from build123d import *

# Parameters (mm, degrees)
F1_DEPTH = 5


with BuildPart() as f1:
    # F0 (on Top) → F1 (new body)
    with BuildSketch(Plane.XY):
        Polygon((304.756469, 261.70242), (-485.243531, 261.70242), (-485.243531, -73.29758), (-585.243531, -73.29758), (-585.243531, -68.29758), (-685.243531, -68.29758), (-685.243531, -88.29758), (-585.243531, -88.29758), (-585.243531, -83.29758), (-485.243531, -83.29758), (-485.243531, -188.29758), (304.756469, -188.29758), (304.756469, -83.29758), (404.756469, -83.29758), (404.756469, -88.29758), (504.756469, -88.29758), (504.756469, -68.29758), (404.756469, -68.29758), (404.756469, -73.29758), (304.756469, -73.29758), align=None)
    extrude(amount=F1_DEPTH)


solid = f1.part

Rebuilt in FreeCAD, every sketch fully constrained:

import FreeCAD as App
import Part
import Sketcher
from FreeCAD import Vector

doc = App.newDocument("Part")
body = doc.addObject("PartDesign::Body", "Body")

# Sketch on XY plane
sketch1 = doc.addObject("Sketcher::SketchObject", "Sketch")
body.addObject(sketch1)
sketch1.AttachmentSupport = (doc.XY_Plane, [""])
sketch1.MapMode = "FlatFace"
sketch1.addGeometry([
    Part.LineSegment(Vector(304.756469, 261.70242, 0), Vector(-485.243531, 261.70242, 0)),  # 0
    Part.LineSegment(Vector(-485.243531, 261.70242, 0), Vector(-485.243531, -73.29758, 0)),  # 1
    Part.LineSegment(Vector(-485.243531, -73.29758, 0), Vector(-585.243531, -73.29758, 0)),  # 2
    Part.LineSegment(Vector(-585.243531, -73.29758, 0), Vector(-585.243531, -68.29758, 0)),  # 3
    Part.LineSegment(Vector(-585.243531, -68.29758, 0), Vector(-685.243531, -68.29758, 0)),  # 4
    Part.LineSegment(Vector(-685.243531, -68.29758, 0), Vector(-685.243531, -88.29758, 0)),  # 5
    Part.LineSegment(Vector(-685.243531, -88.29758, 0), Vector(-585.243531, -88.29758, 0)),  # 6
    Part.LineSegment(Vector(-585.243531, -88.29758, 0), Vector(-585.243531, -83.29758, 0)),  # 7
    Part.LineSegment(Vector(-585.243531, -83.29758, 0), Vector(-485.243531, -83.29758, 0)),  # 8
    Part.LineSegment(Vector(-485.243531, -83.29758, 0), Vector(-485.243531, -188.29758, 0)),  # 9
    Part.LineSegment(Vector(-485.243531, -188.29758, 0), Vector(304.756469, -188.29758, 0)),  # 10
    Part.LineSegment(Vector(304.756469, -188.29758, 0), Vector(304.756469, -83.29758, 0)),  # 11
    Part.LineSegment(Vector(304.756469, -83.29758, 0), Vector(404.756469, -83.29758, 0)),  # 12
    Part.LineSegment(Vector(404.756469, -83.29758, 0), Vector(404.756469, -88.29758, 0)),  # 13
    Part.LineSegment(Vector(404.756469, -88.29758, 0), Vector(504.756469, -88.29758, 0)),  # 14
    Part.LineSegment(Vector(504.756469, -88.29758, 0), Vector(504.756469, -68.29758, 0)),  # 15
    Part.LineSegment(Vector(504.756469, -68.29758, 0), Vector(404.756469, -68.29758, 0)),  # 16
    Part.LineSegment(Vector(404.756469, -68.29758, 0), Vector(404.756469, -73.29758, 0)),  # 17
    Part.LineSegment(Vector(404.756469, -73.29758, 0), Vector(304.756469, -73.29758, 0)),  # 18
    Part.LineSegment(Vector(304.756469, -73.29758, 0), Vector(304.756469, 261.70242, 0)),  # 19
], False)
sketch1.addConstraint([
    Sketcher.Constraint("Coincident", 0, 2, 1, 1),
    Sketcher.Constraint("Coincident", 1, 2, 2, 1),
    Sketcher.Constraint("Coincident", 2, 2, 3, 1),
    Sketcher.Constraint("Coincident", 3, 2, 4, 1),
    Sketcher.Constraint("Coincident", 4, 2, 5, 1),
    Sketcher.Constraint("Coincident", 5, 2, 6, 1),
    Sketcher.Constraint("Coincident", 6, 2, 7, 1),
    Sketcher.Constraint("Coincident", 7, 2, 8, 1),
    Sketcher.Constraint("Coincident", 8, 2, 9, 1),
    Sketcher.Constraint("Coincident", 9, 2, 10, 1),
    Sketcher.Constraint("Coincident", 10, 2, 11, 1),
    Sketcher.Constraint("Coincident", 11, 2, 12, 1),
    Sketcher.Constraint("Coincident", 12, 2, 13, 1),
    Sketcher.Constraint("Coincident", 13, 2, 14, 1),
    Sketcher.Constraint("Coincident", 14, 2, 15, 1),
    Sketcher.Constraint("Coincident", 15, 2, 16, 1),
    Sketcher.Constraint("Coincident", 16, 2, 17, 1),
    Sketcher.Constraint("Coincident", 17, 2, 18, 1),
    Sketcher.Constraint("Coincident", 18, 2, 19, 1),
    Sketcher.Constraint("Coincident", 19, 2, 0, 1),
    Sketcher.Constraint("Horizontal", 0),
    Sketcher.Constraint("Vertical", 1),
    Sketcher.Constraint("Horizontal", 2),
    Sketcher.Constraint("Vertical", 3),
    Sketcher.Constraint("Horizontal", 4),
    Sketcher.Constraint("Vertical", 5),
    Sketcher.Constraint("Horizontal", 6),
    Sketcher.Constraint("Vertical", 7),
    Sketcher.Constraint("Horizontal", 8),
    Sketcher.Constraint("Vertical", 9),
    Sketcher.Constraint("Horizontal", 10),
    Sketcher.Constraint("Vertical", 11),
    Sketcher.Constraint("Horizontal", 12),
    Sketcher.Constraint("Vertical", 13),
    Sketcher.Constraint("Horizontal", 14),
    Sketcher.Constraint("Vertical", 15),
    Sketcher.Constraint("Horizontal", 16),
    Sketcher.Constraint("Vertical", 17),
    Sketcher.Constraint("Horizontal", 18),
    Sketcher.Constraint("Vertical", 19),
    Sketcher.Constraint("Horizontal", 8, 2, 11, 2),
    Sketcher.Constraint("Horizontal", 6, 2, 13, 2),
    Sketcher.Constraint("Horizontal", 4, 2, 15, 2),
    Sketcher.Constraint("Horizontal", 2, 2, 17, 2),
    Sketcher.Constraint("Vertical", 3, 2, 6, 2),
    Sketcher.Constraint("Vertical", 1, 2, 8, 2),
    Sketcher.Constraint("Vertical", 13, 2, 16, 2),
    Sketcher.Constraint("Vertical", 11, 2, 18, 2),
    Sketcher.Constraint("Equal", 2, 4),
    Sketcher.Constraint("Equal", 8, 12),
    Sketcher.Constraint("Equal", 12, 14),
    Sketcher.Constraint("Equal", 3, 7),
    Sketcher.Constraint("DistanceX", 0, 2, 0, 1, 790.0),
    Sketcher.Constraint("DistanceX", 2, 2, 2, 1, 100.0),
    Sketcher.Constraint("DistanceY", 1, 2, 1, 1, 335.0),
    Sketcher.Constraint("DistanceY", 3, 1, 3, 2, 5.0),
    Sketcher.Constraint("DistanceY", 5, 2, 5, 1, 20.0),
    Sketcher.Constraint("DistanceY", 9, 2, 9, 1, 105.0),
    Sketcher.Constraint("DistanceX", 0, 2, -1, 1, 485.243531),
    Sketcher.Constraint("DistanceY", -1, 1, 0, 2, 261.70242),
])
pad1 = doc.addObject("PartDesign::Pad", "Pad")
body.addObject(pad1)
pad1.Profile = sketch1
pad1.Length = 5

doc.recompute()
